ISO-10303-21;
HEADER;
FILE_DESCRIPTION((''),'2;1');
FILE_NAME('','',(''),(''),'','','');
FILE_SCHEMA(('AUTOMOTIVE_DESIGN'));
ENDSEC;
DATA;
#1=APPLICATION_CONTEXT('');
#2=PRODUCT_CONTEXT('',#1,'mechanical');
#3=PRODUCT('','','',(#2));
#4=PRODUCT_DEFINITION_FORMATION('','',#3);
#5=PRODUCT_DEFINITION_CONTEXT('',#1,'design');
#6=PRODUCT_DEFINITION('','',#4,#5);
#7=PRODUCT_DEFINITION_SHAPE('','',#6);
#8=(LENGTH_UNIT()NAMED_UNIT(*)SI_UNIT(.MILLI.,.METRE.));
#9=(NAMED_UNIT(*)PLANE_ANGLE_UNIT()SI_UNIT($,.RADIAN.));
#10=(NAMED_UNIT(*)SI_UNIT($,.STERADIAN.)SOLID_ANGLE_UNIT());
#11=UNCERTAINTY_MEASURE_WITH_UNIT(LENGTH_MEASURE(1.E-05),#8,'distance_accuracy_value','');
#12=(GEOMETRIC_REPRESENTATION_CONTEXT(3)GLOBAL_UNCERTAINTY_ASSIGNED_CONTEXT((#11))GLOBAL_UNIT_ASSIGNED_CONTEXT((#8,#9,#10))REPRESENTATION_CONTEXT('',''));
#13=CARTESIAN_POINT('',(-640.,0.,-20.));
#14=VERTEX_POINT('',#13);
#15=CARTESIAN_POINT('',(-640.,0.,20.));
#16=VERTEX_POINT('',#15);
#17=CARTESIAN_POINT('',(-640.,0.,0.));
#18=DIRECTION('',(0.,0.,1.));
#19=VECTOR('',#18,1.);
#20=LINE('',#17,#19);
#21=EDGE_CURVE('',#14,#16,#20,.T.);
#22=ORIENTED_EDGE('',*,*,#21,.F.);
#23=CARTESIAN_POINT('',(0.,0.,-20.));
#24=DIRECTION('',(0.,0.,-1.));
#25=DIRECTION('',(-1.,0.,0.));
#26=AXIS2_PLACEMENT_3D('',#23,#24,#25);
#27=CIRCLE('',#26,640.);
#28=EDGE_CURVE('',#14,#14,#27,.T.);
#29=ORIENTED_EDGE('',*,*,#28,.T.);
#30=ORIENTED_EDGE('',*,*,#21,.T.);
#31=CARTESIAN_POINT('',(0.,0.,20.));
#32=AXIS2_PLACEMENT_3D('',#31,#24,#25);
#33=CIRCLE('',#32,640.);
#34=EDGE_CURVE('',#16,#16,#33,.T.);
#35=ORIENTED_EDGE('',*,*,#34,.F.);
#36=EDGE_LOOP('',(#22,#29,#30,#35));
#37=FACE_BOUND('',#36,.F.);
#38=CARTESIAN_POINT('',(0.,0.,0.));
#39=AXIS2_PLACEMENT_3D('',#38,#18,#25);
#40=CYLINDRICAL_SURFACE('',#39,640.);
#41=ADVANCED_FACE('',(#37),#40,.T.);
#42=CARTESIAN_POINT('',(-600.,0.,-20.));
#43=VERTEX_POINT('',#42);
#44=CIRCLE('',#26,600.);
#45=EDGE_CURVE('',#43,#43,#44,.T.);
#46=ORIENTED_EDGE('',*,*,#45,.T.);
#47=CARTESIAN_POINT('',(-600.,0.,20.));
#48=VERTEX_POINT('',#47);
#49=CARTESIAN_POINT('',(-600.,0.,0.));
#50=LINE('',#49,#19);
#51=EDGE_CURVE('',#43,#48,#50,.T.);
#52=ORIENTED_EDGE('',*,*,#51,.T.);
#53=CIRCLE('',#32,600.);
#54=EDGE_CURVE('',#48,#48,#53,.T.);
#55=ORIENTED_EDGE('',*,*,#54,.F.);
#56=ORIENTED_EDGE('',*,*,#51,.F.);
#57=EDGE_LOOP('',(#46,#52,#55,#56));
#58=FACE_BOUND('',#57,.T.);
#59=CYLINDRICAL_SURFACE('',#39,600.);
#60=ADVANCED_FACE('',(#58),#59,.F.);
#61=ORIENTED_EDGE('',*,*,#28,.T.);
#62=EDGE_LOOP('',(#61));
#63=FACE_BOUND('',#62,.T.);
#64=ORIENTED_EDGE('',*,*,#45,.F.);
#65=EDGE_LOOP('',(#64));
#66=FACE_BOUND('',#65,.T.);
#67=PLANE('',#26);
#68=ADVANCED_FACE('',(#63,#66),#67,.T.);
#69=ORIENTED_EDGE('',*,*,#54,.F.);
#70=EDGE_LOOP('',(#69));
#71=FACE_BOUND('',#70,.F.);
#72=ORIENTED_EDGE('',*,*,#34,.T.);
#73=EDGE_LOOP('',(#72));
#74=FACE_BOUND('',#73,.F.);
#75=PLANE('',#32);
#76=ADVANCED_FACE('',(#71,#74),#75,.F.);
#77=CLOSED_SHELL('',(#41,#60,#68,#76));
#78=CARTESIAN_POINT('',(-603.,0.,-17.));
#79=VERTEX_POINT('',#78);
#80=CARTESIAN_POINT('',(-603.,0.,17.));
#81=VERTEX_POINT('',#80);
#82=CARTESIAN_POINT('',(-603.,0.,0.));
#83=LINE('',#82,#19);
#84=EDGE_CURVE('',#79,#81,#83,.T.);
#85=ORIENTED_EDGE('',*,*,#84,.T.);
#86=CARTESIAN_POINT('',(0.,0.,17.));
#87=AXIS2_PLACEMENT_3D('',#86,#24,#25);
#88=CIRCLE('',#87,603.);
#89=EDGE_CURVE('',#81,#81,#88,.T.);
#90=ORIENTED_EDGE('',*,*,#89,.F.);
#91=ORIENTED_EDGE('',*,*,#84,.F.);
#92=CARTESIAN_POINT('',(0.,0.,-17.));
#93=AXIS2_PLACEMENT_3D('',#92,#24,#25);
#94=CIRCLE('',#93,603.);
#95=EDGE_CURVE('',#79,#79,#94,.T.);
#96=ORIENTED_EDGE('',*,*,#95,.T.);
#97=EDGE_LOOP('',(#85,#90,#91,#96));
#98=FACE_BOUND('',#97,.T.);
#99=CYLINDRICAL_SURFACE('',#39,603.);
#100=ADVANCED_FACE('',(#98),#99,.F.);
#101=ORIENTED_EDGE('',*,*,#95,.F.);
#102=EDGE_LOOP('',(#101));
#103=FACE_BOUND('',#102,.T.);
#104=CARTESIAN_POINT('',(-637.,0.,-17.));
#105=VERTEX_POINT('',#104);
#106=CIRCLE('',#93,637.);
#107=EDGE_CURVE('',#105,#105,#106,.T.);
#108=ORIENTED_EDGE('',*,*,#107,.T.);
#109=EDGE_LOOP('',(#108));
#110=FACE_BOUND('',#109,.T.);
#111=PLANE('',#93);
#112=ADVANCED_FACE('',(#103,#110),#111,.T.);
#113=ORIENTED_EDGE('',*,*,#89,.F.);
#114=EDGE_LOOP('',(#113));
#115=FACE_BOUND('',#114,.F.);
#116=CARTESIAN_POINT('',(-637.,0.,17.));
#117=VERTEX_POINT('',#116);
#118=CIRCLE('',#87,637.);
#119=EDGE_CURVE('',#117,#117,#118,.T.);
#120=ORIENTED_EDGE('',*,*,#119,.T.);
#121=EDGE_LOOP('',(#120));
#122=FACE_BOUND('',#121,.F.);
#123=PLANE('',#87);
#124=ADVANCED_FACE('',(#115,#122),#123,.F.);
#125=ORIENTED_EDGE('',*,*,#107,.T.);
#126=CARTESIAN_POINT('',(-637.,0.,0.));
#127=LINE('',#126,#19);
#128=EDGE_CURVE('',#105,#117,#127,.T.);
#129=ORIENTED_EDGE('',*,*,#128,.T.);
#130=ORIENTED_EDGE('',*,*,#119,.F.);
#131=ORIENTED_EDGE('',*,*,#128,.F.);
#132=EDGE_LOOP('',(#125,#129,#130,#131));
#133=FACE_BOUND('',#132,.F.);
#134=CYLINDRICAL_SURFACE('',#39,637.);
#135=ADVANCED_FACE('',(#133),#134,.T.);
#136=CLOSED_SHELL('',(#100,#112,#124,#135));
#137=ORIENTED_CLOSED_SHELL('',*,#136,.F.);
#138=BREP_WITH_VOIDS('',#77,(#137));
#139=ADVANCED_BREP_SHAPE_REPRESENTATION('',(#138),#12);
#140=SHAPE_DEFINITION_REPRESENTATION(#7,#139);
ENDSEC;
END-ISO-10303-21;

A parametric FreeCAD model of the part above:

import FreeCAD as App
import Part
import Sketcher
from FreeCAD import Vector
Q = App.Units.Quantity


def add_polygon(sketch, points):
    """Adds a closed chain of lines whose ends are joined by coincident constraints."""
    first, n = sketch.GeometryCount, len(points)
    for a, b in zip(points, points[1:] + points[:1]):
        sketch.addGeometry(Part.LineSegment(App.Vector(*a, 0), App.Vector(*b, 0)), False)
    for i in range(n):
        sketch.addConstraint(Sketcher.Constraint("Coincident", first + i, 2, first + (i + 1) % n, 1))

doc = App.newDocument("Part")
body = doc.addObject("PartDesign::Body", "Body")

sketch1 = doc.addObject("Sketcher::SketchObject", "Sketch")
body.addObject(sketch1)
sketch1.AttachmentSupport = (doc.XZ_Plane, [""])
sketch1.MapMode = "FlatFace"
add_polygon(sketch1, [(-640, 20), (-640, -20), (-600, -20), (-600, 20)])
add_polygon(sketch1, [(-603, -17), (-637, -17), (-637, 17), (-603, 17)])
sketch1.addConstraint([
    Sketcher.Constraint("Vertical", 0),
    Sketcher.Constraint("Horizontal", 1),
    Sketcher.Constraint("Vertical", 2),
    Sketcher.Constraint("Horizontal", 3),
    Sketcher.Constraint("Horizontal", 4),
    Sketcher.Constraint("Vertical", 5),
    Sketcher.Constraint("Horizontal", 6),
    Sketcher.Constraint("Vertical", 7),
    Sketcher.Constraint("Equal", 3, 0),
    Sketcher.Constraint("Equal", 6, 5),
    Sketcher.Constraint("DistanceX", 1, 1, 1, 2, Q("40 mm")),
    Sketcher.Constraint("DistanceX", 4, 2, 4, 1, Q("34 mm")),
    Sketcher.Constraint("DistanceX", 0, 2, -1, 1, Q("640 mm")),
    Sketcher.Constraint("DistanceY", 0, 2, -1, 1, Q("20 mm")),
    Sketcher.Constraint("DistanceX", 4, 2, -1, 1, Q("637 mm")),
    Sketcher.Constraint("DistanceY", 4, 2, -1, 1, Q("17 mm")),
])
revolution = doc.addObject("PartDesign::Revolution", "Revolution")
body.addObject(revolution)
revolution.Profile = sketch1
revolution.ReferenceAxis = (sketch1, ["V_Axis"])
revolution.Angle = 360

doc.recompute()
